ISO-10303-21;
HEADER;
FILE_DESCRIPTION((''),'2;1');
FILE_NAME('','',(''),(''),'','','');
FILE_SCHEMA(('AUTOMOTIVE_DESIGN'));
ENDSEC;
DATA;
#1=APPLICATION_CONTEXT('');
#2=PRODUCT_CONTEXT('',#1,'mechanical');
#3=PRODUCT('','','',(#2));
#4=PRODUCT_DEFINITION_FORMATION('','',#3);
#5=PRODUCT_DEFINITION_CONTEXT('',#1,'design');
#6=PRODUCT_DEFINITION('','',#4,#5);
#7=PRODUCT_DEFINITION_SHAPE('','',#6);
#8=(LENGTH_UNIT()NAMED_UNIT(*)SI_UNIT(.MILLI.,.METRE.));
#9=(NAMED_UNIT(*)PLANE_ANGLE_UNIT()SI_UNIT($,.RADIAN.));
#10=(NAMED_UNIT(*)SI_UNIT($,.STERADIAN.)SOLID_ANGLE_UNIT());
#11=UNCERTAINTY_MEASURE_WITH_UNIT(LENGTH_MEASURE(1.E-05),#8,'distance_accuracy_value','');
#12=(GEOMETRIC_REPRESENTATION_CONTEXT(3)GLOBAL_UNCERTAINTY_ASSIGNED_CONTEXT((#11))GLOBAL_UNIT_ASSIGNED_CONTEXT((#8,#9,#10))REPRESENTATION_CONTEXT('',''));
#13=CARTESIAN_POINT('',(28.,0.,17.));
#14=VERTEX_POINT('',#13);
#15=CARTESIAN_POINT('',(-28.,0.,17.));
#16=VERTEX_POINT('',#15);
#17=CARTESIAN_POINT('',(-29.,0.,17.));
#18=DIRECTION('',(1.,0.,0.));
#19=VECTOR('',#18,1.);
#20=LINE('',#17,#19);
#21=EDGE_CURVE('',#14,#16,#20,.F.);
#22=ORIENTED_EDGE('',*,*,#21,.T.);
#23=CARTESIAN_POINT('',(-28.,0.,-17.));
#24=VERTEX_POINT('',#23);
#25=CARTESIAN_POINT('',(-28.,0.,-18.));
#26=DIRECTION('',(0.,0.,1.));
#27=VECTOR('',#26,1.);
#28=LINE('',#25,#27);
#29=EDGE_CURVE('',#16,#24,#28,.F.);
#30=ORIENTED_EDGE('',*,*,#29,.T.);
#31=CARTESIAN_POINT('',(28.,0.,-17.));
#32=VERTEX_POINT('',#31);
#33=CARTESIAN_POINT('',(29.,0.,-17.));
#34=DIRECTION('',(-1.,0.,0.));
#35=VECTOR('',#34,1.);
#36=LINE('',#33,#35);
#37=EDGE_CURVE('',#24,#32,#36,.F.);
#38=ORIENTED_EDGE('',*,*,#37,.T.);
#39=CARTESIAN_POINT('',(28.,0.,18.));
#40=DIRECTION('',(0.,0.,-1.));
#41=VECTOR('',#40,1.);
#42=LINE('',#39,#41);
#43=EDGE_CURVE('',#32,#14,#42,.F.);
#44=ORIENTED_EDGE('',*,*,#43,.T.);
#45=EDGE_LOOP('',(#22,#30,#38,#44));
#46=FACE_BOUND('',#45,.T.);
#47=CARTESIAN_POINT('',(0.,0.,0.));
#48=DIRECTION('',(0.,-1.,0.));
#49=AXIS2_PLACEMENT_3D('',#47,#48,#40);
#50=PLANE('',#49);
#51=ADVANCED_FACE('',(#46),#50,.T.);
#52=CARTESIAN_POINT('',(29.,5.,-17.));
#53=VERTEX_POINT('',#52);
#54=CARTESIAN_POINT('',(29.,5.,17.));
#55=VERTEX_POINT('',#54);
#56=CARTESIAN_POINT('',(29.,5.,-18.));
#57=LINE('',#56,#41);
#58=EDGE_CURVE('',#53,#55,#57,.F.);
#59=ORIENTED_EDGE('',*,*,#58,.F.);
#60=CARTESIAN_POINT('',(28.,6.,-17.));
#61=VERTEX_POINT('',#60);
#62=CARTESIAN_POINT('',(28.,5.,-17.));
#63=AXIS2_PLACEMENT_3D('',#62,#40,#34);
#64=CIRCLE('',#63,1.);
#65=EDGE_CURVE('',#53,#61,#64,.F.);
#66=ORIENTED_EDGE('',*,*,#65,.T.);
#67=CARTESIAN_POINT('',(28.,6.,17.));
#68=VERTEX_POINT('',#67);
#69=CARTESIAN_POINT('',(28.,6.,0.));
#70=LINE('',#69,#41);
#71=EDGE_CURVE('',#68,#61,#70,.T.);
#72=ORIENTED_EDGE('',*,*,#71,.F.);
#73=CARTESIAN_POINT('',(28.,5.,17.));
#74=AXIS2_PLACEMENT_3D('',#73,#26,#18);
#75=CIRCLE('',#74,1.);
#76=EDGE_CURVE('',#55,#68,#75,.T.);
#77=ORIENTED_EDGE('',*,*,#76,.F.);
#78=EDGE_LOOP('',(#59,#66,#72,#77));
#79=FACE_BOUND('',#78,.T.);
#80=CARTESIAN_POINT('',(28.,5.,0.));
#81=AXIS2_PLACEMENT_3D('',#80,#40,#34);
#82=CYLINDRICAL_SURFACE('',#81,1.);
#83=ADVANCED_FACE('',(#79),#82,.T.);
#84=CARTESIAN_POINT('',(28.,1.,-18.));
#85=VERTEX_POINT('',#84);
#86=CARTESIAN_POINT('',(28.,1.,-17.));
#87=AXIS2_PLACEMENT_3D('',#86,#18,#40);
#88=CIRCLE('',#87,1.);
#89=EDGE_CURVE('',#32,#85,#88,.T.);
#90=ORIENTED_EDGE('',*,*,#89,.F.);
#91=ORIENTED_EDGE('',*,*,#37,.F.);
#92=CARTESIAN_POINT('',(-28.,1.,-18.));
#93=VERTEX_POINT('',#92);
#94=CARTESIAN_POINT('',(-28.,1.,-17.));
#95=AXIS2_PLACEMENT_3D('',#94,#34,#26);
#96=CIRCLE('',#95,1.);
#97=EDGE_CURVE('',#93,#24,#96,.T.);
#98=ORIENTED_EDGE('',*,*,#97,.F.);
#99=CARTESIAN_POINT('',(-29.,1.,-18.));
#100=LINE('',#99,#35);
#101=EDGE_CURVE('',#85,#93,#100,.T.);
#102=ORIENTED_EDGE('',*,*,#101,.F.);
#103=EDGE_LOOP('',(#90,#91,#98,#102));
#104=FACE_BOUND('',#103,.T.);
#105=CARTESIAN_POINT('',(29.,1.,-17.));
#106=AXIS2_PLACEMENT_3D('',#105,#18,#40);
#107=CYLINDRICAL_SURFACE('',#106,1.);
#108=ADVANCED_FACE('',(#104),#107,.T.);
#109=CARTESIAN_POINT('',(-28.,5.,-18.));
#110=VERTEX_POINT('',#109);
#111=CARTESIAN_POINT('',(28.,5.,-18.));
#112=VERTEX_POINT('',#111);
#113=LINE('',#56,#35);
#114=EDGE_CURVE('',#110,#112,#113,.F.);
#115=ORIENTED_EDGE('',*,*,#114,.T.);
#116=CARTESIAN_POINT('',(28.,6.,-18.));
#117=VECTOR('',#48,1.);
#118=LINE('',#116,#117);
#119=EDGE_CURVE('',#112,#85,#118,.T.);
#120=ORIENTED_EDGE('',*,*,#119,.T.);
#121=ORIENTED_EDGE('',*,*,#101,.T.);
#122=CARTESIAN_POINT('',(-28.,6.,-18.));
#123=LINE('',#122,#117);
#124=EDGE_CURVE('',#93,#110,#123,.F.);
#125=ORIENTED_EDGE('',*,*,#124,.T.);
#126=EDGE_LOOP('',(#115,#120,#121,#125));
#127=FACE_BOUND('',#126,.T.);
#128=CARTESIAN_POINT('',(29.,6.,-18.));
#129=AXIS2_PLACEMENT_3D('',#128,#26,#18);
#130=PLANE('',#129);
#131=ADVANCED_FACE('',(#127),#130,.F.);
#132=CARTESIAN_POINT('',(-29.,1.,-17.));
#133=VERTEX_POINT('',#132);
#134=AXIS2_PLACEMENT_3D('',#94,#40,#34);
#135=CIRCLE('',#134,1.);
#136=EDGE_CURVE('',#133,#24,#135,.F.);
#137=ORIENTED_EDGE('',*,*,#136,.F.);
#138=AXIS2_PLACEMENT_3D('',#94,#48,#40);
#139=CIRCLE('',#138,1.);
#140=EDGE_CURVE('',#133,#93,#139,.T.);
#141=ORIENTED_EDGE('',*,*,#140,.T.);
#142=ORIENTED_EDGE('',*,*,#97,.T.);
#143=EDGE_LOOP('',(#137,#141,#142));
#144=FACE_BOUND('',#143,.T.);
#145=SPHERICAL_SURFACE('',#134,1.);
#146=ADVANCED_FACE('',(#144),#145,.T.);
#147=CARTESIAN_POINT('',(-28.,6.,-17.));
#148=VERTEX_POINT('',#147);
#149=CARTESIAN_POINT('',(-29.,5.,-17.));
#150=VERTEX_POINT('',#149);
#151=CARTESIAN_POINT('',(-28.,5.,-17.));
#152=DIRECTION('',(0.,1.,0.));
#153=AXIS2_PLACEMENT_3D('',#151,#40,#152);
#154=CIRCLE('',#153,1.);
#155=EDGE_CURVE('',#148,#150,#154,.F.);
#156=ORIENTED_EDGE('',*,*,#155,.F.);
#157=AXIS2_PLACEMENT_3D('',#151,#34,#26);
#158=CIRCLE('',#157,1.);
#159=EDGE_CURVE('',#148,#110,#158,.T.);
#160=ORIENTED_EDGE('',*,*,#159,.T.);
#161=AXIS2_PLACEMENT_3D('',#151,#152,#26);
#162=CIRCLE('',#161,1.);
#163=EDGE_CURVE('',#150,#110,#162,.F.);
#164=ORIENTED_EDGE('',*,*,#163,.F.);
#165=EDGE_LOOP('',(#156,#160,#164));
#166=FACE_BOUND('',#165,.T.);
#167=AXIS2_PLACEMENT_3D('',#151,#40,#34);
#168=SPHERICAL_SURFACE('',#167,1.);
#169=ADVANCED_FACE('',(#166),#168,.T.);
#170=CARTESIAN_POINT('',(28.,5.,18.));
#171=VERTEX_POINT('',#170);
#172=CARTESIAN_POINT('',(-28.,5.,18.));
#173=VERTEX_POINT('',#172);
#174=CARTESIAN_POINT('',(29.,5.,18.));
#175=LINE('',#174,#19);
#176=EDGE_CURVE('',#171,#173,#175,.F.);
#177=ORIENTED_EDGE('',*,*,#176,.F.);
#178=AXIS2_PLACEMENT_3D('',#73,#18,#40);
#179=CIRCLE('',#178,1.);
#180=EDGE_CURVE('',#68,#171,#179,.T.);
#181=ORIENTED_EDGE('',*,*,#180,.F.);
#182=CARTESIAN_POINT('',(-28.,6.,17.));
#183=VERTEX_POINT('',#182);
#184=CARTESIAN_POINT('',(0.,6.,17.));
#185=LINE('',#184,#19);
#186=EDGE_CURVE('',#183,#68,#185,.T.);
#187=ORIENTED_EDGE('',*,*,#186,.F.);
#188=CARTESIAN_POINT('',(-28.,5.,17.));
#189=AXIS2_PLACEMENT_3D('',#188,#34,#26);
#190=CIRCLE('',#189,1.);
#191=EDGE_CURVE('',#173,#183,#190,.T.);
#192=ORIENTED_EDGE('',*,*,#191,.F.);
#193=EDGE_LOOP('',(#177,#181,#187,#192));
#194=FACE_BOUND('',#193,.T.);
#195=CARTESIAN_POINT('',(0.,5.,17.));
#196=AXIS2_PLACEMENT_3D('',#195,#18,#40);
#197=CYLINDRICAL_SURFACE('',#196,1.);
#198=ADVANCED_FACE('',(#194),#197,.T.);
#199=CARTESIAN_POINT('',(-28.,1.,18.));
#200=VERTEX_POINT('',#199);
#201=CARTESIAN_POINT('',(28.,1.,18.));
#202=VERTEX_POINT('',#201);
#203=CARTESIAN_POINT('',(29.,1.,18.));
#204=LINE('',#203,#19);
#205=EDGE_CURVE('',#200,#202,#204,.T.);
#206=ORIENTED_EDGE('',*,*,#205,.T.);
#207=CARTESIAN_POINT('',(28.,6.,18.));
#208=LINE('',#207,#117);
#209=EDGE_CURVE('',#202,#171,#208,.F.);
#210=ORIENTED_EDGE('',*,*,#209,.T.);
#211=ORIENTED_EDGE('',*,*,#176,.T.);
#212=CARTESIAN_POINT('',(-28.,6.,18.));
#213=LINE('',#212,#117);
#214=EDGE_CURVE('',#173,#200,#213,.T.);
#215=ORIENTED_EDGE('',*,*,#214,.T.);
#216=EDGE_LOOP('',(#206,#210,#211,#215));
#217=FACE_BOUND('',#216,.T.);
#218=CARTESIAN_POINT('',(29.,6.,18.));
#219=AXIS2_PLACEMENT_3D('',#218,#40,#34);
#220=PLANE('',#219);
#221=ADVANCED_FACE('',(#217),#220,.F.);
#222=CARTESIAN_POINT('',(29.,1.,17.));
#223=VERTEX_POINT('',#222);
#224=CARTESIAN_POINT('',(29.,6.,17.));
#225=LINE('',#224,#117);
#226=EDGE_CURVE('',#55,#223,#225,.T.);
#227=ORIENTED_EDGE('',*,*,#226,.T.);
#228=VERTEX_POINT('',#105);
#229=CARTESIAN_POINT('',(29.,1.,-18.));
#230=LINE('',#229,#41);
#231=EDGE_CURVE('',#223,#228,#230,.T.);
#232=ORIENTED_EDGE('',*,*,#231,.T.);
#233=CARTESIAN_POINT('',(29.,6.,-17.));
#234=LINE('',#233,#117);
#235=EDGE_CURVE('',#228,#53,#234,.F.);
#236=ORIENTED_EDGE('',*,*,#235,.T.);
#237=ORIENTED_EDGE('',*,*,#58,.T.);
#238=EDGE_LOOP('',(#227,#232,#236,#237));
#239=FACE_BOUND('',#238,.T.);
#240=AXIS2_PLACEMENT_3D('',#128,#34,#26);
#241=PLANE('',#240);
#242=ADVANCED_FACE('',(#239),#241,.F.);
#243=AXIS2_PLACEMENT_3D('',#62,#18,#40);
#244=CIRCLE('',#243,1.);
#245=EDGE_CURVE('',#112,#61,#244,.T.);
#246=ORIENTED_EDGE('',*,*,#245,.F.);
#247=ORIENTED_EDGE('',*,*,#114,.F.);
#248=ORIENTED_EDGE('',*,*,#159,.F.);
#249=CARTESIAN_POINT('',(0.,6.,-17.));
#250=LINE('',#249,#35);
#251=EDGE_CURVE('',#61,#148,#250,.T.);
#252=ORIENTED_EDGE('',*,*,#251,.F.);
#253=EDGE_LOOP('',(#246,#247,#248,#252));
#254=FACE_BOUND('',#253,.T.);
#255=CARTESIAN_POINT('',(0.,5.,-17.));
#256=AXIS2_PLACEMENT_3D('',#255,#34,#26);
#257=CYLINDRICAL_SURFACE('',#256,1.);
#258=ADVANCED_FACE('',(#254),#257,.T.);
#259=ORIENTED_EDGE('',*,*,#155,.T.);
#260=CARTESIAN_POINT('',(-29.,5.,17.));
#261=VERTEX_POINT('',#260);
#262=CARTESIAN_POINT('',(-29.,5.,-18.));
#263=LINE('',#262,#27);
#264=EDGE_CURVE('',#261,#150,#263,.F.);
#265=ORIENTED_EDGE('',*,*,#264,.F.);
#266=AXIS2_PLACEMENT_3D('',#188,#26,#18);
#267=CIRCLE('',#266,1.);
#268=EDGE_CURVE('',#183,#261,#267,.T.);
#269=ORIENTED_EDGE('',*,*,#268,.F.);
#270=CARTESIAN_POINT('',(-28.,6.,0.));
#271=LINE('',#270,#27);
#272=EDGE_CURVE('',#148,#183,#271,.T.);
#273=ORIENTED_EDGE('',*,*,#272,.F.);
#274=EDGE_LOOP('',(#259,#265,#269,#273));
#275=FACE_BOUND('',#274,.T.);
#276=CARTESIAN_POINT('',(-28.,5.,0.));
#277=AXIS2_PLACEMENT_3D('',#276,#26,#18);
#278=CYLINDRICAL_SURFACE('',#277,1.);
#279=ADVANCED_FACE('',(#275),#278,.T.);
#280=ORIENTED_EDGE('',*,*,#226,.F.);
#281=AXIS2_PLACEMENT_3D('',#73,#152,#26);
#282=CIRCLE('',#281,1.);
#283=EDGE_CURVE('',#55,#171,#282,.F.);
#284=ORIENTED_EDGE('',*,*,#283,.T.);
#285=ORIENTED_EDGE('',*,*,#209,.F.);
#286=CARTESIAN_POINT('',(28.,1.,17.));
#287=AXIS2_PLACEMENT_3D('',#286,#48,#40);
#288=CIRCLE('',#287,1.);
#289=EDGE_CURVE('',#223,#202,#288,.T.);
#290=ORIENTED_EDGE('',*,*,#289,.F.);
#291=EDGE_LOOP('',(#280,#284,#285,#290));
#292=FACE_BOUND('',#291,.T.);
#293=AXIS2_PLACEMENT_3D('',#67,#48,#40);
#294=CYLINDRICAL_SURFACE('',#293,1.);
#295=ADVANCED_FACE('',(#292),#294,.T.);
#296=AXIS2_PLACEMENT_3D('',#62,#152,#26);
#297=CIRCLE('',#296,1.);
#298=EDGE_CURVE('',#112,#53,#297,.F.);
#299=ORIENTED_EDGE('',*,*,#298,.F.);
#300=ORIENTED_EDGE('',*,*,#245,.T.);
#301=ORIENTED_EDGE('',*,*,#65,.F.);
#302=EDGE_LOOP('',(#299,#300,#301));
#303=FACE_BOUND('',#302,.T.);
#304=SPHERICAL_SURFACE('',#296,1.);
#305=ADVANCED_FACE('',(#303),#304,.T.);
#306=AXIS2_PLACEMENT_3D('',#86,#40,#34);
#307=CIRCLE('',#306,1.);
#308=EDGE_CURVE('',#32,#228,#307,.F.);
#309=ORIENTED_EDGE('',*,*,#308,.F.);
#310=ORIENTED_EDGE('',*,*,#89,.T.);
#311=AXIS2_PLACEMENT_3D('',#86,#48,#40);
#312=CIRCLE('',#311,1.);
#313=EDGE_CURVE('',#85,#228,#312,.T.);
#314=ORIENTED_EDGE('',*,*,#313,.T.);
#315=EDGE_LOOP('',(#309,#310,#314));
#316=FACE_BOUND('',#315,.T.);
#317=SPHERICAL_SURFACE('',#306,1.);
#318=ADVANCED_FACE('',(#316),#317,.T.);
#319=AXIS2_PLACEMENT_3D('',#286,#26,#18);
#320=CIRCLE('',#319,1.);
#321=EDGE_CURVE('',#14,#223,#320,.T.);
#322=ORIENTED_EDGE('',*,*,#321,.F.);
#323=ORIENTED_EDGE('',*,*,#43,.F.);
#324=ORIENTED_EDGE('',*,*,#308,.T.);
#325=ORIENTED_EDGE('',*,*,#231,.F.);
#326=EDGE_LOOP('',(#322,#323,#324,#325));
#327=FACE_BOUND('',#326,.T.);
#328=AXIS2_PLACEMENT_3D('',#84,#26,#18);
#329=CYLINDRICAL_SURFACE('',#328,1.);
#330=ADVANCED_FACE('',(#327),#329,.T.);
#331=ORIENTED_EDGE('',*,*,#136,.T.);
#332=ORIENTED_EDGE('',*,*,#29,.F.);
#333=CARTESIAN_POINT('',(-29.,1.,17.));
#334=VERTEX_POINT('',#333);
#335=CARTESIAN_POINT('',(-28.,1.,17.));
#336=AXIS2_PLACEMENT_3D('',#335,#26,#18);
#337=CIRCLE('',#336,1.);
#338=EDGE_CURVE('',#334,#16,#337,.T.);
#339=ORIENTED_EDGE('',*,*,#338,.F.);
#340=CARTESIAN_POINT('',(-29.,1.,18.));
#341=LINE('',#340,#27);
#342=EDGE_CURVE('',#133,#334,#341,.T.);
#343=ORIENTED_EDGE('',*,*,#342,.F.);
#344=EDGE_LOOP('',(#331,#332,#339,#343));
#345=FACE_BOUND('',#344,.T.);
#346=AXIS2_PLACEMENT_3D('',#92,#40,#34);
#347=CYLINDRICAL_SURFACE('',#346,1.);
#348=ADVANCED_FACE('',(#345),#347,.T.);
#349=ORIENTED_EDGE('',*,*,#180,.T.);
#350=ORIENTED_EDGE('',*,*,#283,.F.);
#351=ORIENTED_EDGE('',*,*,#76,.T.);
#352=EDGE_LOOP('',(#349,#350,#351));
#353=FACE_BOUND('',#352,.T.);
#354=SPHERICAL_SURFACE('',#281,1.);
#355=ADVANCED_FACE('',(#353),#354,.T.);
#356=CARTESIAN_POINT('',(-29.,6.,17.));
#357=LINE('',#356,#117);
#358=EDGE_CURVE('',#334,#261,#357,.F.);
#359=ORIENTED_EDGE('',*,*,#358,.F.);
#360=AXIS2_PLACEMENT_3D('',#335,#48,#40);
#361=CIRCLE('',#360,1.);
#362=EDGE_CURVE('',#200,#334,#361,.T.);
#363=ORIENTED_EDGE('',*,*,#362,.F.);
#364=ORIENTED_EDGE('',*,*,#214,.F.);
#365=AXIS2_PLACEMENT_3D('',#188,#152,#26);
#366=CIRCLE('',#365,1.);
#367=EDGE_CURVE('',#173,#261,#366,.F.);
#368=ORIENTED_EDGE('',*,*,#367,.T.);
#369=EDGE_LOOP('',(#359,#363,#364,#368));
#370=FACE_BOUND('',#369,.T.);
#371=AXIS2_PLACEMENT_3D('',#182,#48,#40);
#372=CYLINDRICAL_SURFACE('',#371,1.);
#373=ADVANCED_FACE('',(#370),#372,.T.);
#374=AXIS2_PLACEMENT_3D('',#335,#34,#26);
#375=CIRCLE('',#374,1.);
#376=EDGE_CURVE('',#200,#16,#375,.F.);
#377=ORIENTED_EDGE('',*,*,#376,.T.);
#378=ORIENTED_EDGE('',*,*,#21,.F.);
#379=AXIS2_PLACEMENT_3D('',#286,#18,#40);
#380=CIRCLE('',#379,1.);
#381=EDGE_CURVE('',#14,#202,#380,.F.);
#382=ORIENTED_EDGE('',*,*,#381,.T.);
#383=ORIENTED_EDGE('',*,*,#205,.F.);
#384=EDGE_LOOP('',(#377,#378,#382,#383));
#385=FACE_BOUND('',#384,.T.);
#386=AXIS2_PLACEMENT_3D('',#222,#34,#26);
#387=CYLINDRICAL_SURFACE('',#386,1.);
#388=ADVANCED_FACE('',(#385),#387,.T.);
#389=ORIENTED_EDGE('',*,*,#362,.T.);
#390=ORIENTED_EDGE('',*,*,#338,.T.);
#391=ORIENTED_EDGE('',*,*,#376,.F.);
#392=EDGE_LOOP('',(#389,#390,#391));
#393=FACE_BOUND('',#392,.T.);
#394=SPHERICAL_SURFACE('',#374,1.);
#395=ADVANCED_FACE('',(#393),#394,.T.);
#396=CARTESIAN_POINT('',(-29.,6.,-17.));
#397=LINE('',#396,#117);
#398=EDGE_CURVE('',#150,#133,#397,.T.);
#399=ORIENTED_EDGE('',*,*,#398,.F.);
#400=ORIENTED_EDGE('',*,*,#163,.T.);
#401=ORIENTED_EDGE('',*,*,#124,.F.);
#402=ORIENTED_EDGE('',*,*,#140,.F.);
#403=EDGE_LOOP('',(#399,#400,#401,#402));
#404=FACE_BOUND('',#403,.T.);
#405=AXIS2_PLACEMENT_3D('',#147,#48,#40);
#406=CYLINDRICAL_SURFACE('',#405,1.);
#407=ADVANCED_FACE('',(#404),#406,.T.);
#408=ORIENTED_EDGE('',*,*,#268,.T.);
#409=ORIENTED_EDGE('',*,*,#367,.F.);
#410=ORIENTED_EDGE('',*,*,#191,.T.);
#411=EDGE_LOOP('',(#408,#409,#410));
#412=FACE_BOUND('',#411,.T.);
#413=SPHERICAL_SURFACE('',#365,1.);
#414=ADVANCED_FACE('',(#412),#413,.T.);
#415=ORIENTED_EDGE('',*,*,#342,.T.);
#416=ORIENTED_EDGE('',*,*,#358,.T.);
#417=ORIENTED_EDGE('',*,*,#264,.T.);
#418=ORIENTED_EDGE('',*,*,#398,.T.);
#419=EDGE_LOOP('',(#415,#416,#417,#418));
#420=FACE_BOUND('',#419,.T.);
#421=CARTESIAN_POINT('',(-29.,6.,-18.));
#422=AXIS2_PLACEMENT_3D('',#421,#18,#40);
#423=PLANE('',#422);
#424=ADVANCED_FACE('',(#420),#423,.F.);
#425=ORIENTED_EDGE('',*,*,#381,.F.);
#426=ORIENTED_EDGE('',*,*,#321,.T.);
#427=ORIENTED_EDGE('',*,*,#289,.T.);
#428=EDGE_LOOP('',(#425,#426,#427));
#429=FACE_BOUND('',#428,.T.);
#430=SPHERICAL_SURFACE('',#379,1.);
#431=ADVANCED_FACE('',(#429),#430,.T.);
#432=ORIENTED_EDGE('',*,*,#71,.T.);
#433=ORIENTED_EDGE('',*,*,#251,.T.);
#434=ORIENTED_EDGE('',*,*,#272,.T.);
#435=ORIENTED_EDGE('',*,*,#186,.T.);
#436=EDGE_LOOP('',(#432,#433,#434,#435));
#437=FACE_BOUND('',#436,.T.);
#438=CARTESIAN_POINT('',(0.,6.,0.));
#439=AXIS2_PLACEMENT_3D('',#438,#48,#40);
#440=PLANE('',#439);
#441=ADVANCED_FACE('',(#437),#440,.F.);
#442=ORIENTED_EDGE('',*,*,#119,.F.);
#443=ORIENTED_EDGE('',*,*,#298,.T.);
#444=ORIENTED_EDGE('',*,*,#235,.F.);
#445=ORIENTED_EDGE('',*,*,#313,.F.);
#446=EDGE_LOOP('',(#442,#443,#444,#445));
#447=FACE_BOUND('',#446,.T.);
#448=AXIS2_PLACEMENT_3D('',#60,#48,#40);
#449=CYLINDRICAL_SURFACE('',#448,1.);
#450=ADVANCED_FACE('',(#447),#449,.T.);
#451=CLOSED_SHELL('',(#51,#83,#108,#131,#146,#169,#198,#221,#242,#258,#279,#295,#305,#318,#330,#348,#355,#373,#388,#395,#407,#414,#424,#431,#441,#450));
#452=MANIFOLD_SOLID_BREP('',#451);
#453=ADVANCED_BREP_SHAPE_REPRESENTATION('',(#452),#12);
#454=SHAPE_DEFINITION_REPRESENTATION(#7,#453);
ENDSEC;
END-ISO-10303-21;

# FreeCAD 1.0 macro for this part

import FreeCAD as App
import Part
import Sketcher
from FreeCAD import Vector

doc = App.newDocument("Part")
body = doc.addObject("PartDesign::Body", "Body")

sketch1 = body.newObject("Sketcher::SketchObject", "Sketch")
sketch1.AttachmentSupport = (doc.getObject("XZ_Plane"), [""])
sketch1.MapMode = "FlatFace"
sketch1.addGeometry(Part.LineSegment(Vector(-29, -18, 0), Vector(-29, 18, 0)), False)
sketch1.addGeometry(Part.LineSegment(Vector(-29, 18, 0), Vector(29, 18, 0)), False)
sketch1.addGeometry(Part.LineSegment(Vector(29, 18, 0), Vector(29, -18, 0)), False)
sketch1.addGeometry(Part.LineSegment(Vector(29, -18, 0), Vector(-29, -18, 0)), False)
sketch1.addConstraint(Sketcher.Constraint("Coincident", 0, 2, 1, 1))
sketch1.addConstraint(Sketcher.Constraint("Coincident", 1, 2, 2, 1))
sketch1.addConstraint(Sketcher.Constraint("Coincident", 2, 2, 3, 1))
sketch1.addConstraint(Sketcher.Constraint("Coincident", 3, 2, 0, 1))
sketch1.addConstraint(Sketcher.Constraint("Vertical", 0))
sketch1.addConstraint(Sketcher.Constraint("Horizontal", 1))
sketch1.addConstraint(Sketcher.Constraint("Vertical", 2))
sketch1.addConstraint(Sketcher.Constraint("Horizontal", 3))
sketch1.addConstraint(Sketcher.Constraint("Symmetric", 0, 2, 2, 2, -1, 1))
sketch1.addConstraint(Sketcher.Constraint("DistanceX", 1, 1, 1, 2, 58.0))
sketch1.addConstraint(Sketcher.Constraint("DistanceY", 0, 1, 0, 2, 36.0))
pad1 = body.newObject("PartDesign::Pad", "Pad")
pad1.Profile = sketch1
pad1.Length = 6
pad1.Reversed = True
doc.recompute()

fillet = body.newObject("PartDesign::Fillet", "Fillet")
fillet.Base = (pad1, ["Edge1"])
fillet.UseAllEdges = True
fillet.Radius = 1

doc.recompute()
